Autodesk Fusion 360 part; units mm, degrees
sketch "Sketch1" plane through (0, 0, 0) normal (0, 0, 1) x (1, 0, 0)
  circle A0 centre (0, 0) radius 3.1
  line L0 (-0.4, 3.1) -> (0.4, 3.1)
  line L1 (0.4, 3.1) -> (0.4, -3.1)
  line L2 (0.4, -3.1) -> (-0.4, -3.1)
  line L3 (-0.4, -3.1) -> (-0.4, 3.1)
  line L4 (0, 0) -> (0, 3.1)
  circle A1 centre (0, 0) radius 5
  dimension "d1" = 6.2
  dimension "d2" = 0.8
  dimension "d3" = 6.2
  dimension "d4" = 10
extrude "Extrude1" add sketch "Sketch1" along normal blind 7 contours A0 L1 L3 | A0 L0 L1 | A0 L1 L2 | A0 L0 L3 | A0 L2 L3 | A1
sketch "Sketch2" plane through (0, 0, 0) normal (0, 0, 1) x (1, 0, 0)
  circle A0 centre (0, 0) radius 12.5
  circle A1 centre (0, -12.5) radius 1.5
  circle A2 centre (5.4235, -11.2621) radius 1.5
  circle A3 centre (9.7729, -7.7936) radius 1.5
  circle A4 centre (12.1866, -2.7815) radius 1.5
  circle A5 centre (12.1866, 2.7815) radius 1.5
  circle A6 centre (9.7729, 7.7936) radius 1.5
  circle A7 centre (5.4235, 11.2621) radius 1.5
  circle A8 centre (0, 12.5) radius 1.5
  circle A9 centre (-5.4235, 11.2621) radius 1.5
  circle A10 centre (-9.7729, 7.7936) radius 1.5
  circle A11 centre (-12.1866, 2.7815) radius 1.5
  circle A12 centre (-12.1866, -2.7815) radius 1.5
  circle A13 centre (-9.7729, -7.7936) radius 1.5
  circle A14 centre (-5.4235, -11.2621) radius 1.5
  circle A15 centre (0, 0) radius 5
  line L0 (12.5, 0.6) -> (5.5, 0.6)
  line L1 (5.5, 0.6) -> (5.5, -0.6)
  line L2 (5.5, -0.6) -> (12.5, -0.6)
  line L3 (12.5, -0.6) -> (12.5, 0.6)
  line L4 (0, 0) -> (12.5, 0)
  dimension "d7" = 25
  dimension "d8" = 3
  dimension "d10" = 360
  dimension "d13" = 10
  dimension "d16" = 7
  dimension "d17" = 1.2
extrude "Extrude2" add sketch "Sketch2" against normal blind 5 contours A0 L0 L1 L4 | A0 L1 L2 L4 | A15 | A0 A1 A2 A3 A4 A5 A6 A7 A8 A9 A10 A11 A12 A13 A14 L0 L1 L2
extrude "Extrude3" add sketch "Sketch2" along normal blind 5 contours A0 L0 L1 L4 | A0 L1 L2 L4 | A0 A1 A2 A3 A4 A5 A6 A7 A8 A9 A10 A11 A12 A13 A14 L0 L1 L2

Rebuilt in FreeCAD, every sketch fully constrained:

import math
import FreeCAD as App
import Part
import Sketcher
from FreeCAD import Vector

doc = App.newDocument("Part")
body = doc.addObject("PartDesign::Body", "Body")

# Sketch on XY plane
sketch1 = body.newObject("Sketcher::SketchObject", "Sketch")
sketch1.AttachmentSupport = (doc.getObject("XY_Plane"), [""])
sketch1.MapMode = "FlatFace"
sketch1.addGeometry([
    Part.Circle(Vector(0, 0, 0), Vector(0, 0, 1), 5),  # 0
    Part.LineSegment(Vector(0.4, -3.1, 0), Vector(0.4, 3.1, 0)),  # 1
    Part.ArcOfCircle(Part.Circle(Vector(0, 0, 0), Vector(0, 0, 1), 3.1), math.radians(-83), math.radians(83)),  # 2
    Part.LineSegment(Vector(-0.4, 3.1, 0), Vector(-0.4, -3.1, 0)),  # 3
    Part.ArcOfCircle(Part.Circle(Vector(0, 0, 0), Vector(0, 0, 1), 3.1), math.radians(97), math.radians(263)),  # 4
], False)
sketch1.addConstraint([
    Sketcher.Constraint("Coincident", 1, 1, 2, 1),
    Sketcher.Constraint("Coincident", 2, 2, 1, 2),
    Sketcher.Constraint("Coincident", 3, 1, 4, 1),
    Sketcher.Constraint("Coincident", 4, 2, 3, 2),
    Sketcher.Constraint("Vertical", 1),
    Sketcher.Constraint("Vertical", 3),
    Sketcher.Constraint("Coincident", 0, 3, -1, 1),
    Sketcher.Constraint("Coincident", 2, 3, -1, 1),
    Sketcher.Constraint("Coincident", 4, 3, -1, 1),
    Sketcher.Constraint("Equal", 2, 4),
    Sketcher.Constraint("Horizontal", 2, 2, 3, 1),
    Sketcher.Constraint("Diameter", 0, 10.0),
    Sketcher.Constraint("Radius", 2, 3.1),
    Sketcher.Constraint("DistanceX", 3, 1, 2, 2, 0.8),
])
pad1 = body.newObject("PartDesign::Pad", "Pad")
pad1.Profile = sketch1
pad1.Length = 7

# Sketch on XY plane
sketch2 = body.newObject("Sketcher::SketchObject", "Sketch001")
sketch2.AttachmentSupport = (doc.getObject("XY_Plane"), [""])
sketch2.MapMode = "FlatFace"
sketch2.addGeometry([
    Part.ArcOfCircle(Part.Circle(Vector(12.2, 2.8, 0), Vector(0, 0, 1), 1.5), math.radians(106), math.radians(279)),  # 0
    Part.ArcOfCircle(Part.Circle(Vector(0, 0, 0), Vector(0, 0, 1), 12.5), math.radians(19.74), math.radians(31.69)),  # 1
    Part.ArcOfCircle(Part.Circle(Vector(9.8, 7.8, 0), Vector(0, 0, 1), 1.5), math.radians(132), math.radians(305)),  # 2
    Part.ArcOfCircle(Part.Circle(Vector(0, 0, 0), Vector(0, 0, 1), 12.5), math.radians(45.45), math.radians(57.41)),  # 3
    Part.ArcOfCircle(Part.Circle(Vector(5.4, 11.3, 0), Vector(0, 0, 1), 1.5), math.radians(158), math.radians(331)),  # 4
    Part.ArcOfCircle(Part.Circle(Vector(0, 0, 0), Vector(0, 0, 1), 12.5), math.radians(71.17), math.radians(83.12)),  # 5
    Part.ArcOfCircle(Part.Circle(Vector(0, 12.5, 0), Vector(0, 0, 1), 1.5), math.radians(-177), math.radians(-3)),  # 6
    Part.ArcOfCircle(Part.Circle(Vector(0, 0, 0), Vector(0, 0, 1), 12.5), math.radians(96.88), math.radians(108.83)),  # 7
    Part.ArcOfCircle(Part.Circle(Vector(-5.4, 11.3, 0), Vector(0, 0, 1), 1.5), math.radians(-151), math.radians(22)),  # 8
    Part.ArcOfCircle(Part.Circle(Vector(0, 0, 0), Vector(0, 0, 1), 12.5), math.radians(122.59), math.radians(134.55)),  # 9
    Part.ArcOfCircle(Part.Circle(Vector(-9.8, 7.8, 0), Vector(0, 0, 1), 1.5), math.radians(-125), math.radians(48)),  # 10
    Part.ArcOfCircle(Part.Circle(Vector(0, 0, 0), Vector(0, 0, 1), 12.5), math.radians(148.31), math.radians(160.26)),  # 11
    Part.ArcOfCircle(Part.Circle(Vector(-12.2, 2.8, 0), Vector(0, 0, 1), 1.5), math.radians(-99), math.radians(74)),  # 12
    Part.ArcOfCircle(Part.Circle(Vector(0, 0, 0), Vector(0, 0, 1), 12.5), math.radians(174.02), math.radians(185.98)),  # 13
    Part.ArcOfCircle(Part.Circle(Vector(-12.2, -2.8, 0), Vector(0, 0, 1), 1.5), math.radians(-74), math.radians(99)),  # 14
    Part.ArcOfCircle(Part.Circle(Vector(0, 0, 0), Vector(0, 0, 1), 12.5), math.radians(-160.26), math.radians(-148.31)),  # 15
    Part.ArcOfCircle(Part.Circle(Vector(-9.8, -7.8, 0), Vector(0, 0, 1), 1.5), math.radians(-48), math.radians(125)),  # 16
    Part.ArcOfCircle(Part.Circle(Vector(0, 0, 0), Vector(0, 0, 1), 12.5), math.radians(-134.55), math.radians(-122.59)),  # 17
    Part.ArcOfCircle(Part.Circle(Vector(-5.4, -11.3, 0), Vector(0, 0, 1), 1.5), math.radians(-22), math.radians(151)),  # 18
    Part.ArcOfCircle(Part.Circle(Vector(0, 0, 0), Vector(0, 0, 1), 12.5), math.radians(-108.83), math.radians(-96.88)),  # 19
    Part.ArcOfCircle(Part.Circle(Vector(0, -12.5, 0), Vector(0, 0, 1), 1.5), math.radians(3), math.radians(177)),  # 20
    Part.ArcOfCircle(Part.Circle(Vector(0, 0, 0), Vector(0, 0, 1), 12.5), math.radians(-83.12), math.radians(-71.17)),  # 21
    Part.ArcOfCircle(Part.Circle(Vector(5.4, -11.3, 0), Vector(0, 0, 1), 1.5), math.radians(29), math.radians(202)),  # 22
    Part.ArcOfCircle(Part.Circle(Vector(0, 0, 0), Vector(0, 0, 1), 12.5), math.radians(-57.41), math.radians(-45.45)),  # 23
    Part.ArcOfCircle(Part.Circle(Vector(9.8, -7.8, 0), Vector(0, 0, 1), 1.5), math.radians(55), math.radians(228)),  # 24
    Part.ArcOfCircle(Part.Circle(Vector(0, 0, 0), Vector(0, 0, 1), 12.5), math.radians(-31.69), math.radians(-19.74)),  # 25
    Part.ArcOfCircle(Part.Circle(Vector(12.2, -2.8, 0), Vector(0, 0, 1), 1.5), math.radians(81), math.radians(254)),  # 26
    Part.ArcOfCircle(Part.Circle(Vector(0, 0, 0), Vector(0, 0, 1), 12.5), math.radians(-5.98), math.radians(5.98)),  # 27
], False)
sketch2.addConstraint([
    Sketcher.Constraint("Coincident", 0, 1, 1, 1),
    Sketcher.Constraint("Coincident", 1, 2, 2, 2),
    Sketcher.Constraint("Coincident", 2, 1, 3, 1),
    Sketcher.Constraint("Coincident", 3, 2, 4, 2),
    Sketcher.Constraint("Coincident", 4, 1, 5, 1),
    Sketcher.Constraint("Coincident", 5, 2, 6, 2),
    Sketcher.Constraint("Coincident", 6, 1, 7, 1),
    Sketcher.Constraint("Coincident", 7, 2, 8, 2),
    Sketcher.Constraint("Coincident", 8, 1, 9, 1),
    Sketcher.Constraint("Coincident", 9, 2, 10, 2),
    Sketcher.Constraint("Coincident", 10, 1, 11, 1),
    Sketcher.Constraint("Coincident", 11, 2, 12, 2),
    Sketcher.Constraint("Coincident", 12, 1, 13, 1),
    Sketcher.Constraint("Coincident", 13, 2, 14, 2),
    Sketcher.Constraint("Coincident", 14, 1, 15, 1),
    Sketcher.Constraint("Coincident", 15, 2, 16, 2),
    Sketcher.Constraint("Coincident", 16, 1, 17, 1),
    Sketcher.Constraint("Coincident", 17, 2, 18, 2),
    Sketcher.Constraint("Coincident", 18, 1, 19, 1),
    Sketcher.Constraint("Coincident", 19, 2, 20, 2),
    Sketcher.Constraint("Coincident", 20, 1, 21, 1),
    Sketcher.Constraint("Coincident", 21, 2, 22, 2),
    Sketcher.Constraint("Coincident", 22, 1, 23, 1),
    Sketcher.Constraint("Coincident", 23, 2, 24, 2),
    Sketcher.Constraint("Coincident", 24, 1, 25, 1),
    Sketcher.Constraint("Coincident", 25, 2, 26, 2),
    Sketcher.Constraint("Coincident", 26, 1, 27, 1),
    Sketcher.Constraint("Coincident", 27, 2, 0, 2),
    Sketcher.Constraint("Coincident", 1, 3, -1, 1),
    Sketcher.Constraint("Coincident", 3, 3, -1, 1),
    Sketcher.Constraint("Coincident", 5, 3, -1, 1),
    Sketcher.Constraint("Coincident", 7, 3, -1, 1),
    Sketcher.Constraint("Coincident", 9, 3, -1, 1),
    Sketcher.Constraint("Coincident", 11, 3, -1, 1),
    Sketcher.Constraint("Coincident", 13, 3, -1, 1),
    Sketcher.Constraint("Coincident", 15, 3, -1, 1),
    Sketcher.Constraint("Coincident", 17, 3, -1, 1),
    Sketcher.Constraint("Coincident", 19, 3, -1, 1),
    Sketcher.Constraint("Coincident", 21, 3, -1, 1),
    Sketcher.Constraint("Coincident", 23, 3, -1, 1),
    Sketcher.Constraint("Coincident", 25, 3, -1, 1),
    Sketcher.Constraint("Coincident", 27, 3, -1, 1),
    Sketcher.Constraint("Equal", 0, 2),
    Sketcher.Constraint("Equal", 1, 3),
    Sketcher.Constraint("Equal", 2, 4),
    Sketcher.Constraint("Equal", 3, 5),
    Sketcher.Constraint("Equal", 4, 6),
    Sketcher.Constraint("Equal", 5, 7),
    Sketcher.Constraint("Equal", 6, 8),
    Sketcher.Constraint("Equal", 7, 9),
    Sketcher.Constraint("Equal", 8, 10),
    Sketcher.Constraint("Equal", 9, 11),
    Sketcher.Constraint("Equal", 10, 12),
    Sketcher.Constraint("Equal", 11, 13),
    Sketcher.Constraint("Equal", 12, 14),
    Sketcher.Constraint("Equal", 13, 15),
    Sketcher.Constraint("Equal", 14, 16),
    Sketcher.Constraint("Equal", 15, 17),
    Sketcher.Constraint("Equal", 16, 18),
    Sketcher.Constraint("Equal", 17, 19),
    Sketcher.Constraint("Equal", 18, 20),
    Sketcher.Constraint("Equal", 19, 21),
    Sketcher.Constraint("Equal", 20, 22),
    Sketcher.Constraint("Equal", 21, 23),
    Sketcher.Constraint("Equal", 22, 24),
    Sketcher.Constraint("Equal", 23, 25),
    Sketcher.Constraint("Equal", 24, 26),
    Sketcher.Constraint("Equal", 25, 27),
    Sketcher.Constraint("Symmetric", 0, 3, 14, 3, -1, 1),
    Sketcher.Constraint("Symmetric", 2, 3, 16, 3, -1, 1),
    Sketcher.Constraint("Symmetric", 4, 3, 18, 3, -1, 1),
    Sketcher.Constraint("Symmetric", 6, 3, 20, 3, -1, 1),
    Sketcher.Constraint("Symmetric", 8, 3, 22, 3, -1, 1),
    Sketcher.Constraint("Symmetric", 10, 3, 24, 3, -1, 1),
    Sketcher.Constraint("Symmetric", 12, 3, 26, 3, -1, 1),
    Sketcher.Constraint("Symmetric", 4, 3, 8, 3, -2),
    Sketcher.Constraint("Symmetric", 2, 3, 10, 3, -2),
    Sketcher.Constraint("Symmetric", 0, 3, 12, 3, -2),
    Sketcher.Constraint("PointOnObject", 6, 3, -2),
    Sketcher.Constraint("Radius", 0, 1.5),
    Sketcher.Constraint("Radius", 1, 12.5),
    Sketcher.Constraint("DistanceY", -1, 1, 6, 3, 12.5),
    Sketcher.Constraint("DistanceX", 4, 3, 3, 2, 1.31),
    Sketcher.Constraint("DistanceX", -1, 1, 2, 3, 9.773),
    Sketcher.Constraint("DistanceY", -1, 1, 4, 3, 11.262),
    Sketcher.Constraint("DistanceX", -1, 1, 1, 2, 10.636),
    Sketcher.Constraint("DistanceX", 12, 1, -1, 1, 12.432),
    Sketcher.Constraint("DistanceY", 0, 3, 2, 3, 5.012),
])
pad2 = body.newObject("PartDesign::Pad", "Pad001")
pad2.Profile = sketch2
pad2.Length = 5
pad2.Reversed = True

# Sketch on XY plane
sketch3 = body.newObject("Sketcher::SketchObject", "Sketch002")
sketch3.AttachmentSupport = (doc.getObject("XY_Plane"), [""])
sketch3.MapMode = "FlatFace"
sketch3.addGeometry([
    Part.ArcOfCircle(Part.Circle(Vector(12.2, 2.8, 0), Vector(0, 0, 1), 1.5), math.radians(106), math.radians(279)),  # 0
    Part.ArcOfCircle(Part.Circle(Vector(0, 0, 0), Vector(0, 0, 1), 12.5), math.radians(19.74), math.radians(31.69)),  # 1
    Part.ArcOfCircle(Part.Circle(Vector(9.8, 7.8, 0), Vector(0, 0, 1), 1.5), math.radians(132), math.radians(305)),  # 2
    Part.ArcOfCircle(Part.Circle(Vector(0, 0, 0), Vector(0, 0, 1), 12.5), math.radians(45.45), math.radians(57.41)),  # 3
    Part.ArcOfCircle(Part.Circle(Vector(5.4, 11.3, 0), Vector(0, 0, 1), 1.5), math.radians(158), math.radians(331)),  # 4
    Part.ArcOfCircle(Part.Circle(Vector(0, 0, 0), Vector(0, 0, 1), 12.5), math.radians(71.17), math.radians(83.12)),  # 5
    Part.ArcOfCircle(Part.Circle(Vector(0, 12.5, 0), Vector(0, 0, 1), 1.5), math.radians(-177), math.radians(-3)),  # 6
    Part.ArcOfCircle(Part.Circle(Vector(0, 0, 0), Vector(0, 0, 1), 12.5), math.radians(96.88), math.radians(108.83)),  # 7
    Part.ArcOfCircle(Part.Circle(Vector(-5.4, 11.3, 0), Vector(0, 0, 1), 1.5), math.radians(-151), math.radians(22)),  # 8
    Part.ArcOfCircle(Part.Circle(Vector(0, 0, 0), Vector(0, 0, 1), 12.5), math.radians(122.59), math.radians(134.55)),  # 9
    Part.ArcOfCircle(Part.Circle(Vector(-9.8, 7.8, 0), Vector(0, 0, 1), 1.5), math.radians(-125), math.radians(48)),  # 10
    Part.ArcOfCircle(Part.Circle(Vector(0, 0, 0), Vector(0, 0, 1), 12.5), math.radians(148.31), math.radians(160.26)),  # 11
    Part.ArcOfCircle(Part.Circle(Vector(-12.2, 2.8, 0), Vector(0, 0, 1), 1.5), math.radians(-99), math.radians(74)),  # 12
    Part.ArcOfCircle(Part.Circle(Vector(0, 0, 0), Vector(0, 0, 1), 12.5), math.radians(174.02), math.radians(185.98)),  # 13
    Part.ArcOfCircle(Part.Circle(Vector(-12.2, -2.8, 0), Vector(0, 0, 1), 1.5), math.radians(-74), math.radians(99)),  # 14
    Part.ArcOfCircle(Part.Circle(Vector(0, 0, 0), Vector(0, 0, 1), 12.5), math.radians(-160.26), math.radians(-148.31)),  # 15
    Part.ArcOfCircle(Part.Circle(Vector(-9.8, -7.8, 0), Vector(0, 0, 1), 1.5), math.radians(-48), math.radians(125)),  # 16
    Part.ArcOfCircle(Part.Circle(Vector(0, 0, 0), Vector(0, 0, 1), 12.5), math.radians(-134.55), math.radians(-122.59)),  # 17
    Part.ArcOfCircle(Part.Circle(Vector(-5.4, -11.3, 0), Vector(0, 0, 1), 1.5), math.radians(-22), math.radians(151)),  # 18
    Part.ArcOfCircle(Part.Circle(Vector(0, 0, 0), Vector(0, 0, 1), 12.5), math.radians(-108.83), math.radians(-96.88)),  # 19
    Part.ArcOfCircle(Part.Circle(Vector(0, -12.5, 0), Vector(0, 0, 1), 1.5), math.radians(3), math.radians(177)),  # 20
    Part.ArcOfCircle(Part.Circle(Vector(0, 0, 0), Vector(0, 0, 1), 12.5), math.radians(-83.12), math.radians(-71.17)),  # 21
    Part.ArcOfCircle(Part.Circle(Vector(5.4, -11.3, 0), Vector(0, 0, 1), 1.5), math.radians(29), math.radians(202)),  # 22
    Part.ArcOfCircle(Part.Circle(Vector(0, 0, 0), Vector(0, 0, 1), 12.5), math.radians(-57.41), math.radians(-45.45)),  # 23
    Part.ArcOfCircle(Part.Circle(Vector(9.8, -7.8, 0), Vector(0, 0, 1), 1.5), math.radians(55), math.radians(228)),  # 24
    Part.ArcOfCircle(Part.Circle(Vector(0, 0, 0), Vector(0, 0, 1), 12.5), math.radians(-31.69), math.radians(-19.74)),  # 25
    Part.ArcOfCircle(Part.Circle(Vector(12.2, -2.8, 0), Vector(0, 0, 1), 1.5), math.radians(81), math.radians(254)),  # 26
    Part.ArcOfCircle(Part.Circle(Vector(0, 0, 0), Vector(0, 0, 1), 12.5), math.radians(-5.98), math.radians(5.98)),  # 27
    Part.Circle(Vector(0, 0, 0), Vector(0, 0, 1), 5),  # 28
], False)
sketch3.addConstraint([
    Sketcher.Constraint("Coincident", 0, 1, 1, 1),
    Sketcher.Constraint("Coincident", 1, 2, 2, 2),
    Sketcher.Constraint("Coincident", 2, 1, 3, 1),
    Sketcher.Constraint("Coincident", 3, 2, 4, 2),
    Sketcher.Constraint("Coincident", 4, 1, 5, 1),
    Sketcher.Constraint("Coincident", 5, 2, 6, 2),
    Sketcher.Constraint("Coincident", 6, 1, 7, 1),
    Sketcher.Constraint("Coincident", 7, 2, 8, 2),
    Sketcher.Constraint("Coincident", 8, 1, 9, 1),
    Sketcher.Constraint("Coincident", 9, 2, 10, 2),
    Sketcher.Constraint("Coincident", 10, 1, 11, 1),
    Sketcher.Constraint("Coincident", 11, 2, 12, 2),
    Sketcher.Constraint("Coincident", 12, 1, 13, 1),
    Sketcher.Constraint("Coincident", 13, 2, 14, 2),
    Sketcher.Constraint("Coincident", 14, 1, 15, 1),
    Sketcher.Constraint("Coincident", 15, 2, 16, 2),
    Sketcher.Constraint("Coincident", 16, 1, 17, 1),
    Sketcher.Constraint("Coincident", 17, 2, 18, 2),
    Sketcher.Constraint("Coincident", 18, 1, 19, 1),
    Sketcher.Constraint("Coincident", 19, 2, 20, 2),
    Sketcher.Constraint("Coincident", 20, 1, 21, 1),
    Sketcher.Constraint("Coincident", 21, 2, 22, 2),
    Sketcher.Constraint("Coincident", 22, 1, 23, 1),
    Sketcher.Constraint("Coincident", 23, 2, 24, 2),
    Sketcher.Constraint("Coincident", 24, 1, 25, 1),
    Sketcher.Constraint("Coincident", 25, 2, 26, 2),
    Sketcher.Constraint("Coincident", 26, 1, 27, 1),
    Sketcher.Constraint("Coincident", 27, 2, 0, 2),
    Sketcher.Constraint("Coincident", 1, 3, -1, 1),
    Sketcher.Constraint("Coincident", 3, 3, -1, 1),
    Sketcher.Constraint("Coincident", 5, 3, -1, 1),
    Sketcher.Constraint("Coincident", 7, 3, -1, 1),
    Sketcher.Constraint("Coincident", 9, 3, -1, 1),
    Sketcher.Constraint("Coincident", 11, 3, -1, 1),
    Sketcher.Constraint("Coincident", 13, 3, -1, 1),
    Sketcher.Constraint("Coincident", 15, 3, -1, 1),
    Sketcher.Constraint("Coincident", 17, 3, -1, 1),
    Sketcher.Constraint("Coincident", 19, 3, -1, 1),
    Sketcher.Constraint("Coincident", 21, 3, -1, 1),
    Sketcher.Constraint("Coincident", 23, 3, -1, 1),
    Sketcher.Constraint("Coincident", 25, 3, -1, 1),
    Sketcher.Constraint("Coincident", 27, 3, -1, 1),
    Sketcher.Constraint("Coincident", 28, 3, -1, 1),
    Sketcher.Constraint("Equal", 0, 2),
    Sketcher.Constraint("Equal", 1, 3),
    Sketcher.Constraint("Equal", 2, 4),
    Sketcher.Constraint("Equal", 3, 5),
    Sketcher.Constraint("Equal", 4, 6),
    Sketcher.Constraint("Equal", 5, 7),
    Sketcher.Constraint("Equal", 6, 8),
    Sketcher.Constraint("Equal", 7, 9),
    Sketcher.Constraint("Equal", 8, 10),
    Sketcher.Constraint("Equal", 9, 11),
    Sketcher.Constraint("Equal", 10, 12),
    Sketcher.Constraint("Equal", 11, 13),
    Sketcher.Constraint("Equal", 12, 14),
    Sketcher.Constraint("Equal", 13, 15),
    Sketcher.Constraint("Equal", 14, 16),
    Sketcher.Constraint("Equal", 15, 17),
    Sketcher.Constraint("Equal", 16, 18),
    Sketcher.Constraint("Equal", 17, 19),
    Sketcher.Constraint("Equal", 18, 20),
    Sketcher.Constraint("Equal", 19, 21),
    Sketcher.Constraint("Equal", 20, 22),
    Sketcher.Constraint("Equal", 21, 23),
    Sketcher.Constraint("Equal", 22, 24),
    Sketcher.Constraint("Equal", 23, 25),
    Sketcher.Constraint("Equal", 24, 26),
    Sketcher.Constraint("Equal", 25, 27),
    Sketcher.Constraint("Symmetric", 0, 3, 14, 3, -1, 1),
    Sketcher.Constraint("Symmetric", 2, 3, 16, 3, -1, 1),
    Sketcher.Constraint("Symmetric", 4, 3, 18, 3, -1, 1),
    Sketcher.Constraint("Symmetric", 6, 3, 20, 3, -1, 1),
    Sketcher.Constraint("Symmetric", 8, 3, 22, 3, -1, 1),
    Sketcher.Constraint("Symmetric", 10, 3, 24, 3, -1, 1),
    Sketcher.Constraint("Symmetric", 12, 3, 26, 3, -1, 1),
    Sketcher.Constraint("Symmetric", 4, 3, 8, 3, -2),
    Sketcher.Constraint("Symmetric", 2, 3, 10, 3, -2),
    Sketcher.Constraint("Symmetric", 0, 3, 12, 3, -2),
    Sketcher.Constraint("PointOnObject", 6, 3, -2),
    Sketcher.Constraint("Diameter", 28, 10.0),
    Sketcher.Constraint("Radius", 0, 1.5),
    Sketcher.Constraint("Radius", 1, 12.5),
    Sketcher.Constraint("DistanceY", -1, 1, 6, 3, 12.5),
    Sketcher.Constraint("DistanceX", 4, 3, 3, 2, 1.31),
    Sketcher.Constraint("DistanceX", -1, 1, 2, 3, 9.773),
    Sketcher.Constraint("DistanceY", -1, 1, 4, 3, 11.262),
    Sketcher.Constraint("DistanceX", -1, 1, 1, 2, 10.636),
    Sketcher.Constraint("DistanceX", 12, 1, -1, 1, 12.432),
    Sketcher.Constraint("DistanceY", 0, 3, 2, 3, 5.012),
])
pad3 = body.newObject("PartDesign::Pad", "Pad002")
pad3.Profile = sketch3
pad3.Length = 5

doc.recompute()
